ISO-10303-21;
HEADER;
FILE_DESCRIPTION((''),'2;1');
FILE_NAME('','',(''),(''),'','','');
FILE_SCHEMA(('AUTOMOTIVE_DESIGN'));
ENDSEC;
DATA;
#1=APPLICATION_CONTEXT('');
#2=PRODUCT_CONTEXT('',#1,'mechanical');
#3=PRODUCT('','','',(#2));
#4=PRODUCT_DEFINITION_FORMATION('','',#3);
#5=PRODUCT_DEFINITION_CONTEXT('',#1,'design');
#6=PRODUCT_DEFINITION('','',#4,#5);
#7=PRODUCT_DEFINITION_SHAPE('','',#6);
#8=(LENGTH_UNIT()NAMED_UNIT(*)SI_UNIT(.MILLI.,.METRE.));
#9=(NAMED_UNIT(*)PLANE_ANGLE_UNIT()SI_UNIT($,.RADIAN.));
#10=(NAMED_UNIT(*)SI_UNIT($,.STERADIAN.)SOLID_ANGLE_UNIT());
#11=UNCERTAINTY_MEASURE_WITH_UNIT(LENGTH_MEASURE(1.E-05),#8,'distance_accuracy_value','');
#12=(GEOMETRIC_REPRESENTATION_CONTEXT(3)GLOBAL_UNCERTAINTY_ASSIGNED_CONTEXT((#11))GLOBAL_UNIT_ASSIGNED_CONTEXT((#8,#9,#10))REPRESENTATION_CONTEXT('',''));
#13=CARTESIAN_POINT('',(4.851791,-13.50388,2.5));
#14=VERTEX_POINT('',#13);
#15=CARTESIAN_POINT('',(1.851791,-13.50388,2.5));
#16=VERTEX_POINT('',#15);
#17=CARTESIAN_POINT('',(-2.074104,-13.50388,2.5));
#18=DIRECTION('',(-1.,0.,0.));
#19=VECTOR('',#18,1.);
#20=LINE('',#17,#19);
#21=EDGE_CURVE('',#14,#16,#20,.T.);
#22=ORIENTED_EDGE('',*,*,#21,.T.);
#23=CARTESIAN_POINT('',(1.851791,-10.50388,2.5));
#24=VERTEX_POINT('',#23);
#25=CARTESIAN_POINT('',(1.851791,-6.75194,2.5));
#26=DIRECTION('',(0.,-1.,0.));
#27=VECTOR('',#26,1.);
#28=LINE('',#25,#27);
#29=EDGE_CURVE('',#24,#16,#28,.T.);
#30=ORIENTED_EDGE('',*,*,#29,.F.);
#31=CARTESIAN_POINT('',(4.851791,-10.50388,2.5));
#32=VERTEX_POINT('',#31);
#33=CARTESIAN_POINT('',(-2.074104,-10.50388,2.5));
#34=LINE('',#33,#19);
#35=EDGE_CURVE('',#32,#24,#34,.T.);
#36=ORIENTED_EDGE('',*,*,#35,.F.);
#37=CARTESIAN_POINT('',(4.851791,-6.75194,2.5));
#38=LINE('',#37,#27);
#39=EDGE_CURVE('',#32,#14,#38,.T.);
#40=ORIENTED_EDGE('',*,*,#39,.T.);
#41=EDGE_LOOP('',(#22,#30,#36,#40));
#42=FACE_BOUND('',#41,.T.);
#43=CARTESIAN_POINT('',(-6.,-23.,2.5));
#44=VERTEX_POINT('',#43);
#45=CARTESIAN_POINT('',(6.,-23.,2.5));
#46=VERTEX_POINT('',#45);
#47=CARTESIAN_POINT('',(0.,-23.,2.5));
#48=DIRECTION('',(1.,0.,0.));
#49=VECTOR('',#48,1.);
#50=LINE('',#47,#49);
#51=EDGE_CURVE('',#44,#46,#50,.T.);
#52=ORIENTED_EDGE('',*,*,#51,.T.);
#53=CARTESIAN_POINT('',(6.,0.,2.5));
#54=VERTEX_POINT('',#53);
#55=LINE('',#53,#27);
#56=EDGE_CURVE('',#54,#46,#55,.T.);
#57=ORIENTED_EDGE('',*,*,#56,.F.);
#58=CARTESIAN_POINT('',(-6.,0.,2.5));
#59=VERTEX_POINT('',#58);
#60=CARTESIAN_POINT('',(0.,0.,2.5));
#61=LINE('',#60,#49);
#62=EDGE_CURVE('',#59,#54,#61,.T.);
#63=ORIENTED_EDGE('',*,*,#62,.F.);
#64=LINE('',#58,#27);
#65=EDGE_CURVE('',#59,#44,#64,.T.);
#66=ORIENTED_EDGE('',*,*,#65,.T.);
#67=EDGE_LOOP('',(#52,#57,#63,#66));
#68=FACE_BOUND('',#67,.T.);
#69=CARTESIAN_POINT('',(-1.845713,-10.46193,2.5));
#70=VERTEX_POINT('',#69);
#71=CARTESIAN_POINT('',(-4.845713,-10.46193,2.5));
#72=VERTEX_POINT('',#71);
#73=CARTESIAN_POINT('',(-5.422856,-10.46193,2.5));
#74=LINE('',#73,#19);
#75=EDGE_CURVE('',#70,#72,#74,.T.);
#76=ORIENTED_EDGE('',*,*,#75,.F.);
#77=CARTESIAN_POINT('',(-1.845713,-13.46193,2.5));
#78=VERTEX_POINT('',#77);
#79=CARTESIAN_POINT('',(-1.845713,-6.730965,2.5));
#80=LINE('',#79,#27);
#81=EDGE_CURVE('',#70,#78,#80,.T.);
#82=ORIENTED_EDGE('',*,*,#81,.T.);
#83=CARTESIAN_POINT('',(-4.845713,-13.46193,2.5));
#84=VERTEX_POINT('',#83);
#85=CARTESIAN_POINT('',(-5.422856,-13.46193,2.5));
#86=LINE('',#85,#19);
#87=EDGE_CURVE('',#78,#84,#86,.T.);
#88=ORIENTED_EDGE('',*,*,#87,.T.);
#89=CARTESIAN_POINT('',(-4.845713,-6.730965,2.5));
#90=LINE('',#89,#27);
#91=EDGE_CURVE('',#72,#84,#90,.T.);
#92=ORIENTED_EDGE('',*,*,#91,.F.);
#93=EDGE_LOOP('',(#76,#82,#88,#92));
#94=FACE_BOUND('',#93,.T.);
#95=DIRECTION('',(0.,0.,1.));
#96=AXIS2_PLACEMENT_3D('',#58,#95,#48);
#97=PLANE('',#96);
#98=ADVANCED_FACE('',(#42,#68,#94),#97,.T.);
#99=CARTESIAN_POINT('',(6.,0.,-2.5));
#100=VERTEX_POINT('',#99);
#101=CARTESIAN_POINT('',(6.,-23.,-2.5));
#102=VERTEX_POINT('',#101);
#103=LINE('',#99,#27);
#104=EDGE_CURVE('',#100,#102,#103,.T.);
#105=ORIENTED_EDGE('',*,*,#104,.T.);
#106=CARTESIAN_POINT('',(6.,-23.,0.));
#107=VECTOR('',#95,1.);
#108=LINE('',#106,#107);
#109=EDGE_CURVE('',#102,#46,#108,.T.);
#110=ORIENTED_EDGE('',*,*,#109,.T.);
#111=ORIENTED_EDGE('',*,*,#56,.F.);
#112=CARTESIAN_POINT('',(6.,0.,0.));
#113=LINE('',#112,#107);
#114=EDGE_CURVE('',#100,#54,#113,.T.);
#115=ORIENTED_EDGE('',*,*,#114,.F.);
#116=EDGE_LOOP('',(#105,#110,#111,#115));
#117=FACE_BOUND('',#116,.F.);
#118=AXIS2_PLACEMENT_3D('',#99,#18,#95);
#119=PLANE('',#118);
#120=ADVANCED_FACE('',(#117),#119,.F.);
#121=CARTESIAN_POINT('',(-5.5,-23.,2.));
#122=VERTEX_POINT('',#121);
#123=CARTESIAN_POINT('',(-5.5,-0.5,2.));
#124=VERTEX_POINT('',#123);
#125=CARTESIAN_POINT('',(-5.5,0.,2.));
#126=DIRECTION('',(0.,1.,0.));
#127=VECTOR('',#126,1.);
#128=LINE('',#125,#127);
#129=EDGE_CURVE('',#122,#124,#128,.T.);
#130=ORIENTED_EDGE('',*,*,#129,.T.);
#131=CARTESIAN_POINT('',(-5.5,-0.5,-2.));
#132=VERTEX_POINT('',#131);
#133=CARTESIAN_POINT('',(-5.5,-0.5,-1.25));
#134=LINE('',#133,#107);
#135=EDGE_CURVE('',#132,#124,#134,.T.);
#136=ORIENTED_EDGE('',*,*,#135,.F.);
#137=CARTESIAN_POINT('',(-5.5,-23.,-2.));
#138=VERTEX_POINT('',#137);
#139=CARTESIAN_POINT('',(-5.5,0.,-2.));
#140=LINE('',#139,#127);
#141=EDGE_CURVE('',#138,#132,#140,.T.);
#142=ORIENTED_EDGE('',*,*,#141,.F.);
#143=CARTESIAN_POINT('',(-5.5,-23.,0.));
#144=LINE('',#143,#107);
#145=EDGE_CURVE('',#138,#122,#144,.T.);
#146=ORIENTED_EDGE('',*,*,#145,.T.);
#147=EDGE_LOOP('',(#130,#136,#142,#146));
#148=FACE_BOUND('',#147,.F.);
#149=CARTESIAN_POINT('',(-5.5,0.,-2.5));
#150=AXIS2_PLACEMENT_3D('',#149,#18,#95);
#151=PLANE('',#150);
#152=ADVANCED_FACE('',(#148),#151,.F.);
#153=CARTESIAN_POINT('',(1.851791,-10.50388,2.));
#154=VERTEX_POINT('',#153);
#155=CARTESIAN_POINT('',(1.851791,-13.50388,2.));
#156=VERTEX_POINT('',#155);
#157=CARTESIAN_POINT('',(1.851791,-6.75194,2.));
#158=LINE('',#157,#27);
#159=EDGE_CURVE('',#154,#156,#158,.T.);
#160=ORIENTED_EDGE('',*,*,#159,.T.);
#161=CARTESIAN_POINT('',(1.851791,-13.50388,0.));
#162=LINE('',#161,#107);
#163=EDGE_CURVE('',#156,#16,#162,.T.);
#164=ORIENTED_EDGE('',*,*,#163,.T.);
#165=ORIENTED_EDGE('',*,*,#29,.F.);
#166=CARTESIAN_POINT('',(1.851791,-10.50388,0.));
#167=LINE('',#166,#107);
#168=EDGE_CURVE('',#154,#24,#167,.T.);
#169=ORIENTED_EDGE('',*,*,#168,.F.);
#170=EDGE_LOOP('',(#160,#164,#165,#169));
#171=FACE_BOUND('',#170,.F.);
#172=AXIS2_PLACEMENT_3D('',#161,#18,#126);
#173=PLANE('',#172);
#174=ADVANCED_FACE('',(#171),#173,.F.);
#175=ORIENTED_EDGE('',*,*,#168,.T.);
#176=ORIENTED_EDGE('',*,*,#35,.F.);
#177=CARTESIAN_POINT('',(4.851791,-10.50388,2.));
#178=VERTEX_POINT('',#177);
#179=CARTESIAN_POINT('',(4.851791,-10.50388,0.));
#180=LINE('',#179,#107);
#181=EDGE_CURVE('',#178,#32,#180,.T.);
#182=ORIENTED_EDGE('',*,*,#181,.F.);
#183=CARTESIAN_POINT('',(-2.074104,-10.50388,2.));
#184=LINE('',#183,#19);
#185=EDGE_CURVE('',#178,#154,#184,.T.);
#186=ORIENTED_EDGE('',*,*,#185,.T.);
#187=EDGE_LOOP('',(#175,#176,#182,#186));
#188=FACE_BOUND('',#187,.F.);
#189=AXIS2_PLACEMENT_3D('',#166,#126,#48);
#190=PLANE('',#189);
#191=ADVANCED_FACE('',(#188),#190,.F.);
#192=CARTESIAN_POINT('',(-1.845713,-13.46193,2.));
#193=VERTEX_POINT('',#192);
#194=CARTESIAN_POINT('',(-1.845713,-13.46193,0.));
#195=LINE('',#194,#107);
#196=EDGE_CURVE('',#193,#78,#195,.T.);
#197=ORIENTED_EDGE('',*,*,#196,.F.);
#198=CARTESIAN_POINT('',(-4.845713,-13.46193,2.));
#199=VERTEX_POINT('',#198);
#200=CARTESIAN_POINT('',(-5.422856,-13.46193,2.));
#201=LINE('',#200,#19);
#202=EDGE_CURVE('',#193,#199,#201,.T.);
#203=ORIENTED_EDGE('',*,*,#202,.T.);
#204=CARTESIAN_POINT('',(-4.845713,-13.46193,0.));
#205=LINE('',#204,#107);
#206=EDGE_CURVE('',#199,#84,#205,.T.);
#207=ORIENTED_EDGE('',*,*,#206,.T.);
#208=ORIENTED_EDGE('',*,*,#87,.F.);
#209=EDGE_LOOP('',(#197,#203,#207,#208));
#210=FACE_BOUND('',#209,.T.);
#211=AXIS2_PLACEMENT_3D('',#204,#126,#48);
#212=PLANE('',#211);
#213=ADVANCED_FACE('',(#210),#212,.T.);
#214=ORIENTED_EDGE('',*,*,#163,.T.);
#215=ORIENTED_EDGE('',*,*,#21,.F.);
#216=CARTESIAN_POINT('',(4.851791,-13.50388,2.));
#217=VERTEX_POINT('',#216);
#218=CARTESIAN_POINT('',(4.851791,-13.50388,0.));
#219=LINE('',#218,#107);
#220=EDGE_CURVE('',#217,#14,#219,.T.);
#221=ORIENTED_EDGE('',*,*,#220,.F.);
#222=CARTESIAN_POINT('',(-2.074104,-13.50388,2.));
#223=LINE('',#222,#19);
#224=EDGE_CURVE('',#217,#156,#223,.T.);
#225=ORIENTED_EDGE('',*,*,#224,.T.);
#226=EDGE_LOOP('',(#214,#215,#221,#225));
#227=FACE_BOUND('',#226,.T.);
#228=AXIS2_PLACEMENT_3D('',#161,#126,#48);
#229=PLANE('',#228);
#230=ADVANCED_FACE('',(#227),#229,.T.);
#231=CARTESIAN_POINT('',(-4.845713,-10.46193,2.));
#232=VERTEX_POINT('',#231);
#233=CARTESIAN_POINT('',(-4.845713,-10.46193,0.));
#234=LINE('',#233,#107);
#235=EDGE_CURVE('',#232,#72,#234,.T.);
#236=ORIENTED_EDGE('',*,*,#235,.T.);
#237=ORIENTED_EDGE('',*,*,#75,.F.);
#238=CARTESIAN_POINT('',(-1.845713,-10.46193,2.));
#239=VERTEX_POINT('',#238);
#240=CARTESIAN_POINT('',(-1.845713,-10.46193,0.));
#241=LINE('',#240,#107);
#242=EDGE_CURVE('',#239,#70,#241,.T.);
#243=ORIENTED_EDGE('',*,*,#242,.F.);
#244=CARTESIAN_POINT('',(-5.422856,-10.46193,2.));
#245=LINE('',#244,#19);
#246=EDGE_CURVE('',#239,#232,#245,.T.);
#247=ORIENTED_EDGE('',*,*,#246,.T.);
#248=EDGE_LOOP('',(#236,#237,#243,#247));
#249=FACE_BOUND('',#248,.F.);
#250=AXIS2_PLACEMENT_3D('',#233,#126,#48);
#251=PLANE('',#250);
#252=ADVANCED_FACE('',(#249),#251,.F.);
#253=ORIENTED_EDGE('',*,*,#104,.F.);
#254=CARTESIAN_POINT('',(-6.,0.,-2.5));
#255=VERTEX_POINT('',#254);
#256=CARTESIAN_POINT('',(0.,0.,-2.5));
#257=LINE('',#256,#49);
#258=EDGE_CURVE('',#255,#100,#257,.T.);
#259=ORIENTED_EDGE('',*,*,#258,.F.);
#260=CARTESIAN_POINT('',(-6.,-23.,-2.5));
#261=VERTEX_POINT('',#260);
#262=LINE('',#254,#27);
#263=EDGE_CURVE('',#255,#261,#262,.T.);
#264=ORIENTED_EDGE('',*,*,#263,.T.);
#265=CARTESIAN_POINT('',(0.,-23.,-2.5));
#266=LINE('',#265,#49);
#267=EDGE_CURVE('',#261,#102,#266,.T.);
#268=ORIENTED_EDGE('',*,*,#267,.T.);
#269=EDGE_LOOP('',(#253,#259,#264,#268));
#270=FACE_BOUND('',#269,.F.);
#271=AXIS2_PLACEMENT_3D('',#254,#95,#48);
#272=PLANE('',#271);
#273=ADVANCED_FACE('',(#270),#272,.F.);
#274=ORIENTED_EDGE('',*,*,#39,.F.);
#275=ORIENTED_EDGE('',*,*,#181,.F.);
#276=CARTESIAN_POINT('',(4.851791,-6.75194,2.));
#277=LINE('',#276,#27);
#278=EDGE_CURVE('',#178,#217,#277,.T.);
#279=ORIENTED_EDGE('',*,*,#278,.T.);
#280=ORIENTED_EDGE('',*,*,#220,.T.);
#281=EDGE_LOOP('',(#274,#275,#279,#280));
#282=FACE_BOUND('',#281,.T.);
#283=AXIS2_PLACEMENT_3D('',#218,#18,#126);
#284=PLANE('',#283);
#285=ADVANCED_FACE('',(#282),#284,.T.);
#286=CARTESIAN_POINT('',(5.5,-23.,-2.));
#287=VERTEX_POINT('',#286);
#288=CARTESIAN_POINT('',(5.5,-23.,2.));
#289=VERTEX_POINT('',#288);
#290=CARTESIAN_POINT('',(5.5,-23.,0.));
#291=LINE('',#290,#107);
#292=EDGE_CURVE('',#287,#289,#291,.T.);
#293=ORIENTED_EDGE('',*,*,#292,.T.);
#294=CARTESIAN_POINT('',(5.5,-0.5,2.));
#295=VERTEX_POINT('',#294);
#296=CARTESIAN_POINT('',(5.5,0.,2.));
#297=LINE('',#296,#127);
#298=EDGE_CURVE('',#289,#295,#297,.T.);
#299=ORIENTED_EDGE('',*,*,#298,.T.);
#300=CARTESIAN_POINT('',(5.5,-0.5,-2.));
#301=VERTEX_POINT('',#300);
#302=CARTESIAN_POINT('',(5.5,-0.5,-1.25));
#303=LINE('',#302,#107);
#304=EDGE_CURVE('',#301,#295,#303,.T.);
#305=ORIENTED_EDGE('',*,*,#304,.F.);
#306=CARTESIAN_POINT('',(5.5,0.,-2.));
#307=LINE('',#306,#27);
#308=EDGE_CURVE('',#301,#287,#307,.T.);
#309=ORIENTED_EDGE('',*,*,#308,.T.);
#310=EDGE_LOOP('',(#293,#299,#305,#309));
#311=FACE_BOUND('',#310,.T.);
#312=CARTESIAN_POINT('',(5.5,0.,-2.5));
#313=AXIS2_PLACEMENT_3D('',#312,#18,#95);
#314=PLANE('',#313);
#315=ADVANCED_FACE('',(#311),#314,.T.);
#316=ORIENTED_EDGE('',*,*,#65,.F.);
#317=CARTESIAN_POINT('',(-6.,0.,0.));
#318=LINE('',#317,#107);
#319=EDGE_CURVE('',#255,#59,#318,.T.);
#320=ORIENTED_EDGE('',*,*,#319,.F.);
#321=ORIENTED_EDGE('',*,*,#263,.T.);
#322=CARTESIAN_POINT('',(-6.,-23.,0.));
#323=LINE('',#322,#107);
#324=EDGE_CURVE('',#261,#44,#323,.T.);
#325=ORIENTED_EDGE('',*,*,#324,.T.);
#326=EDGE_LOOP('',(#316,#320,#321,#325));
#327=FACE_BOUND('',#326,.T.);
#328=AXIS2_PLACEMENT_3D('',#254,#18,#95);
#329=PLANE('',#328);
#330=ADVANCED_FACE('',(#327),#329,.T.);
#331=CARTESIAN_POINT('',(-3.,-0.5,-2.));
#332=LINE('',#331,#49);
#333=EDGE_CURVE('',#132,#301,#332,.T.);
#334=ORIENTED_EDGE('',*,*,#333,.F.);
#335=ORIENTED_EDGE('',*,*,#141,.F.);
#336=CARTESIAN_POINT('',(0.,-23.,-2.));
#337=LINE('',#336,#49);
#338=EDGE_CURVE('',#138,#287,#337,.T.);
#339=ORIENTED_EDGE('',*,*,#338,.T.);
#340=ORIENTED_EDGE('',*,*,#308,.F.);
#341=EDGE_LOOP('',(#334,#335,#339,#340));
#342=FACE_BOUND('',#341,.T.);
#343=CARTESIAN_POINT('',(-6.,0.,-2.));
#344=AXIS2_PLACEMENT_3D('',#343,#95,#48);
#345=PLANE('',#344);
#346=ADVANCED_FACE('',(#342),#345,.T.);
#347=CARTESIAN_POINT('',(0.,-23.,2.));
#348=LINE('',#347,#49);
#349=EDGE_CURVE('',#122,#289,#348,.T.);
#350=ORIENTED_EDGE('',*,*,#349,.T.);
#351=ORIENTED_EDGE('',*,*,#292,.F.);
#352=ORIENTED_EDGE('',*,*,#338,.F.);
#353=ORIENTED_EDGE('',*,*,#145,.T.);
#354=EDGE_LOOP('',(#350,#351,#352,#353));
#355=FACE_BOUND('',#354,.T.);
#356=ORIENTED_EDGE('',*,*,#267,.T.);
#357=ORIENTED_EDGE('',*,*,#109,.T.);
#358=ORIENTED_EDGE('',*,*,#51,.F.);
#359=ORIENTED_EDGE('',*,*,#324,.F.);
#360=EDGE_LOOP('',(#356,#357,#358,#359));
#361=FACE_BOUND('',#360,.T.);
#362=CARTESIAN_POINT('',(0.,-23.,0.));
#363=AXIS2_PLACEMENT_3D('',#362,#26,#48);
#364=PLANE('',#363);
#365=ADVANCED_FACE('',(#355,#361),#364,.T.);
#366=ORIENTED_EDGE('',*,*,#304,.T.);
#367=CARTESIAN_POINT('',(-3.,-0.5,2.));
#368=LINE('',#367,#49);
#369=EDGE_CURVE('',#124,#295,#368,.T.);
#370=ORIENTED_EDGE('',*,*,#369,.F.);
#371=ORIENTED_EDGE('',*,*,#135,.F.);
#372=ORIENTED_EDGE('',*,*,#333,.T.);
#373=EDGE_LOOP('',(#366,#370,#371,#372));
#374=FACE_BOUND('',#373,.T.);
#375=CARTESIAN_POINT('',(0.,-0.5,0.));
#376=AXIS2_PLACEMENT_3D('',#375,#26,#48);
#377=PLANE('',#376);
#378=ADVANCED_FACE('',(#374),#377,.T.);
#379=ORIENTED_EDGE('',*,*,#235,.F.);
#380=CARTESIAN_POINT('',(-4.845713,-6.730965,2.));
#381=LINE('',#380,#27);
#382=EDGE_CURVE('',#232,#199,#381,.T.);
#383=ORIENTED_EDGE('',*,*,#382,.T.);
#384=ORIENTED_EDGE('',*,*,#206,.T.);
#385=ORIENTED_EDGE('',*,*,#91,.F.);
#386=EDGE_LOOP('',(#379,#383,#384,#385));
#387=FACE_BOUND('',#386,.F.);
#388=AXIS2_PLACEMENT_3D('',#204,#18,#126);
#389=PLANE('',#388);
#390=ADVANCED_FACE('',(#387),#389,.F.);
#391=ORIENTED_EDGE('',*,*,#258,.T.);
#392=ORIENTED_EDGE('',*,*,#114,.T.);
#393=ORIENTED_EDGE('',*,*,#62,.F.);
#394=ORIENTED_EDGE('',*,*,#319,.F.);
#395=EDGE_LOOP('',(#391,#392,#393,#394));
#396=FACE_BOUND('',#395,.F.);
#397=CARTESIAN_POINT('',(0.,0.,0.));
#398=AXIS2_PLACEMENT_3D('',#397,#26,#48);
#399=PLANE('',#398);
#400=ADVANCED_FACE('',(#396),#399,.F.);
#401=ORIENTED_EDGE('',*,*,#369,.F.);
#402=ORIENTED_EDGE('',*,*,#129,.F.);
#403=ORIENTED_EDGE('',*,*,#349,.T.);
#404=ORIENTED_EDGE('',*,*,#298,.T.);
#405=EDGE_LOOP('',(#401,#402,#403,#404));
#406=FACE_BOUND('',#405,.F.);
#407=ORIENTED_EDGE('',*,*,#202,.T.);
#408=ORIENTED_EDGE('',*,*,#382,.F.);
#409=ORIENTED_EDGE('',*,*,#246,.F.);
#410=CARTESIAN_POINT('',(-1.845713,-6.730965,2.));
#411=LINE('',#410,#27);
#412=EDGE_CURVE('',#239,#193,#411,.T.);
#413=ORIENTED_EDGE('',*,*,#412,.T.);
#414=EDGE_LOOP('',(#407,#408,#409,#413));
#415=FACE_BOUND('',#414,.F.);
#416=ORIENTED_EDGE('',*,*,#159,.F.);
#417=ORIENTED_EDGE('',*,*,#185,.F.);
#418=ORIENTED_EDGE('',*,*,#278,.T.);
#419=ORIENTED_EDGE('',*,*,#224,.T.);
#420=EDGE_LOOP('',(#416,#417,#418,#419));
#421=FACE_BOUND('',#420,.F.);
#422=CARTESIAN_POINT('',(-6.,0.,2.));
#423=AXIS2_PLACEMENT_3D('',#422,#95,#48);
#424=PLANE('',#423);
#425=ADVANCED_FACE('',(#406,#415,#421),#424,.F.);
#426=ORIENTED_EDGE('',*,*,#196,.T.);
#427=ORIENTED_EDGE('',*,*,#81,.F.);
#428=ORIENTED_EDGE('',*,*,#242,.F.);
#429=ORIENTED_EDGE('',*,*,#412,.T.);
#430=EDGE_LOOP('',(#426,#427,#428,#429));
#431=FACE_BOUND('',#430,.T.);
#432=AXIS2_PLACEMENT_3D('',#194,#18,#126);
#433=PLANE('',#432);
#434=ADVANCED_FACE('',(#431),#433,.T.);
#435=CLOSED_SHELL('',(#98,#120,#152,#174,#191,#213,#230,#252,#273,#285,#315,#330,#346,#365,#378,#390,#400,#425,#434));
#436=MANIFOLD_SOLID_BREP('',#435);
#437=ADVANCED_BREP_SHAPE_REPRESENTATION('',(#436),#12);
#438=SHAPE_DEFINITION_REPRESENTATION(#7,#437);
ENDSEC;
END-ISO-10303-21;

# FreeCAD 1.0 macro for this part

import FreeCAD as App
import Part
import Sketcher

V = App.Vector


def faces_at(feature, points):
    """Names of the faces that lie closest to the given points."""
    faces = feature.Shape.Faces
    near = lambda p: min(range(len(faces)), key=lambda i: faces[i].distToShape(Part.Vertex(*p))[0])
    return sorted({f"Face{near(p) + 1}" for p in points})


def add_polygon(sketch, points):
    """Adds a closed chain of lines whose ends are joined by coincident constraints."""
    first, n = sketch.GeometryCount, len(points)
    for a, b in zip(points, points[1:] + points[:1]):
        sketch.addGeometry(Part.LineSegment(App.Vector(*a, 0), App.Vector(*b, 0)), False)
    for i in range(n):
        sketch.addConstraint(Sketcher.Constraint("Coincident", first + i, 2, first + (i + 1) % n, 1))

doc = App.newDocument("Part")
params = doc.addObject("Spreadsheet::Sheet", "Params")
for row, (alias, value) in enumerate([
    ("sketch1_width", "12 mm"),
    ("sketch1_height", "5 mm"),
    ("pad1_length", "23 mm"),
    ("thickness_wall", "0.5 mm"),
    ("sketch2_width", "3 mm"),
    ("pocket1_length", "4.2 mm"),
    ("sketch3_width", "3 mm"),
    ("pocket2_length", "6.2 mm"),
], start=1):
    params.set(f"A{row}", alias)
    params.set(f"B{row}", "=" + value)
    params.setAlias(f"B{row}", alias)

body = doc.addObject("PartDesign::Body", "Body")

# Sketch on XZ plane
sketch1 = doc.addObject("Sketcher::SketchObject", "Sketch")
body.addObject(sketch1)
sketch1.AttachmentSupport = (doc.XZ_Plane, [""])
sketch1.MapMode = "FlatFace"
add_polygon(sketch1, [(-6, 2), (-6, -2), (6, -2), (6, 2)])  # lines 0-3
sketch1.addConstraint([
    Sketcher.Constraint("Vertical", 0),
    Sketcher.Constraint("Horizontal", 1),
    Sketcher.Constraint("Vertical", 2),
    Sketcher.Constraint("Horizontal", 3),
    Sketcher.Constraint("Symmetric", 0, 2, 2, 2, -1, 1),
    Sketcher.Constraint("DistanceX", 1, 1, 1, 2, 12.0),
    Sketcher.Constraint("DistanceY", 0, 2, 0, 1, 5.0),
])
sketch1.setExpression("Constraints[9]", "Params.sketch1_width")
sketch1.setExpression("Constraints[10]", "Params.sketch1_height")
pad1 = doc.addObject("PartDesign::Pad", "Pad")
body.addObject(pad1)
pad1.Profile = sketch1
pad1.setExpression("Length", "Params.pad1_length")
doc.recompute()

thickness = doc.addObject("PartDesign::Thickness", "Thickness")
body.addObject(thickness)
thickness.Base = (pad1, faces_at(pad1, [(0, -23, 0)]))
thickness.setExpression("Value", "Params.thickness_wall")
thickness.Reversed = True
thickness.Join = "Arc"

# Sketch on XY plane
sketch2 = doc.addObject("Sketcher::SketchObject", "Sketch001")
body.addObject(sketch2)
sketch2.AttachmentSupport = (doc.XY_Plane, [""])
sketch2.MapMode = "FlatFace"
add_polygon(sketch2, [(-4.8, -10.5), (-4.8, -13.5), (-1.8, -13.5), (-1.8, -10.5)])  # lines 0-3
sketch2.addConstraint([
    Sketcher.Constraint("Vertical", 0),
    Sketcher.Constraint("Horizontal", 1),
    Sketcher.Constraint("Vertical", 2),
    Sketcher.Constraint("Horizontal", 3),
    Sketcher.Constraint("Equal", 3, 0),
    Sketcher.Constraint("DistanceX", 1, 1, 1, 2, 3.0),
    Sketcher.Constraint("DistanceY", 0, 2, -1, 1, 13.46193),
    Sketcher.Constraint("DistanceX", 0, 2, -1, 1, 4.845713),
])
sketch2.setExpression("Constraints[9]", "Params.sketch2_width")
pocket1 = doc.addObject("PartDesign::Pocket", "Pocket")
body.addObject(pocket1)
pocket1.Profile = sketch2
pocket1.setExpression("Length", "Params.pocket1_length")
pocket1.Reversed = True

# Sketch on XY plane
sketch3 = doc.addObject("Sketcher::SketchObject", "Sketch002")
body.addObject(sketch3)
sketch3.AttachmentSupport = (doc.XY_Plane, [""])
sketch3.MapMode = "FlatFace"
add_polygon(sketch3, [(1.9, -10.5), (1.9, -13.5), (4.9, -13.5), (4.9, -10.5)])  # lines 0-3
sketch3.addConstraint([
    Sketcher.Constraint("Vertical", 0),
    Sketcher.Constraint("Horizontal", 1),
    Sketcher.Constraint("Vertical", 2),
    Sketcher.Constraint("Horizontal", 3),
    Sketcher.Constraint("Equal", 3, 0),
    Sketcher.Constraint("DistanceX", 1, 1, 1, 2, 3.0),
    Sketcher.Constraint("DistanceX", -1, 1, 0, 2, 1.851791),
    Sketcher.Constraint("DistanceY", 0, 2, -1, 1, 13.50388),
])
sketch3.setExpression("Constraints[9]", "Params.sketch3_width")
pocket2 = doc.addObject("PartDesign::Pocket", "Pocket001")
body.addObject(pocket2)
pocket2.Profile = sketch3
pocket2.setExpression("Length", "Params.pocket2_length")
pocket2.Reversed = True

doc.recompute()
